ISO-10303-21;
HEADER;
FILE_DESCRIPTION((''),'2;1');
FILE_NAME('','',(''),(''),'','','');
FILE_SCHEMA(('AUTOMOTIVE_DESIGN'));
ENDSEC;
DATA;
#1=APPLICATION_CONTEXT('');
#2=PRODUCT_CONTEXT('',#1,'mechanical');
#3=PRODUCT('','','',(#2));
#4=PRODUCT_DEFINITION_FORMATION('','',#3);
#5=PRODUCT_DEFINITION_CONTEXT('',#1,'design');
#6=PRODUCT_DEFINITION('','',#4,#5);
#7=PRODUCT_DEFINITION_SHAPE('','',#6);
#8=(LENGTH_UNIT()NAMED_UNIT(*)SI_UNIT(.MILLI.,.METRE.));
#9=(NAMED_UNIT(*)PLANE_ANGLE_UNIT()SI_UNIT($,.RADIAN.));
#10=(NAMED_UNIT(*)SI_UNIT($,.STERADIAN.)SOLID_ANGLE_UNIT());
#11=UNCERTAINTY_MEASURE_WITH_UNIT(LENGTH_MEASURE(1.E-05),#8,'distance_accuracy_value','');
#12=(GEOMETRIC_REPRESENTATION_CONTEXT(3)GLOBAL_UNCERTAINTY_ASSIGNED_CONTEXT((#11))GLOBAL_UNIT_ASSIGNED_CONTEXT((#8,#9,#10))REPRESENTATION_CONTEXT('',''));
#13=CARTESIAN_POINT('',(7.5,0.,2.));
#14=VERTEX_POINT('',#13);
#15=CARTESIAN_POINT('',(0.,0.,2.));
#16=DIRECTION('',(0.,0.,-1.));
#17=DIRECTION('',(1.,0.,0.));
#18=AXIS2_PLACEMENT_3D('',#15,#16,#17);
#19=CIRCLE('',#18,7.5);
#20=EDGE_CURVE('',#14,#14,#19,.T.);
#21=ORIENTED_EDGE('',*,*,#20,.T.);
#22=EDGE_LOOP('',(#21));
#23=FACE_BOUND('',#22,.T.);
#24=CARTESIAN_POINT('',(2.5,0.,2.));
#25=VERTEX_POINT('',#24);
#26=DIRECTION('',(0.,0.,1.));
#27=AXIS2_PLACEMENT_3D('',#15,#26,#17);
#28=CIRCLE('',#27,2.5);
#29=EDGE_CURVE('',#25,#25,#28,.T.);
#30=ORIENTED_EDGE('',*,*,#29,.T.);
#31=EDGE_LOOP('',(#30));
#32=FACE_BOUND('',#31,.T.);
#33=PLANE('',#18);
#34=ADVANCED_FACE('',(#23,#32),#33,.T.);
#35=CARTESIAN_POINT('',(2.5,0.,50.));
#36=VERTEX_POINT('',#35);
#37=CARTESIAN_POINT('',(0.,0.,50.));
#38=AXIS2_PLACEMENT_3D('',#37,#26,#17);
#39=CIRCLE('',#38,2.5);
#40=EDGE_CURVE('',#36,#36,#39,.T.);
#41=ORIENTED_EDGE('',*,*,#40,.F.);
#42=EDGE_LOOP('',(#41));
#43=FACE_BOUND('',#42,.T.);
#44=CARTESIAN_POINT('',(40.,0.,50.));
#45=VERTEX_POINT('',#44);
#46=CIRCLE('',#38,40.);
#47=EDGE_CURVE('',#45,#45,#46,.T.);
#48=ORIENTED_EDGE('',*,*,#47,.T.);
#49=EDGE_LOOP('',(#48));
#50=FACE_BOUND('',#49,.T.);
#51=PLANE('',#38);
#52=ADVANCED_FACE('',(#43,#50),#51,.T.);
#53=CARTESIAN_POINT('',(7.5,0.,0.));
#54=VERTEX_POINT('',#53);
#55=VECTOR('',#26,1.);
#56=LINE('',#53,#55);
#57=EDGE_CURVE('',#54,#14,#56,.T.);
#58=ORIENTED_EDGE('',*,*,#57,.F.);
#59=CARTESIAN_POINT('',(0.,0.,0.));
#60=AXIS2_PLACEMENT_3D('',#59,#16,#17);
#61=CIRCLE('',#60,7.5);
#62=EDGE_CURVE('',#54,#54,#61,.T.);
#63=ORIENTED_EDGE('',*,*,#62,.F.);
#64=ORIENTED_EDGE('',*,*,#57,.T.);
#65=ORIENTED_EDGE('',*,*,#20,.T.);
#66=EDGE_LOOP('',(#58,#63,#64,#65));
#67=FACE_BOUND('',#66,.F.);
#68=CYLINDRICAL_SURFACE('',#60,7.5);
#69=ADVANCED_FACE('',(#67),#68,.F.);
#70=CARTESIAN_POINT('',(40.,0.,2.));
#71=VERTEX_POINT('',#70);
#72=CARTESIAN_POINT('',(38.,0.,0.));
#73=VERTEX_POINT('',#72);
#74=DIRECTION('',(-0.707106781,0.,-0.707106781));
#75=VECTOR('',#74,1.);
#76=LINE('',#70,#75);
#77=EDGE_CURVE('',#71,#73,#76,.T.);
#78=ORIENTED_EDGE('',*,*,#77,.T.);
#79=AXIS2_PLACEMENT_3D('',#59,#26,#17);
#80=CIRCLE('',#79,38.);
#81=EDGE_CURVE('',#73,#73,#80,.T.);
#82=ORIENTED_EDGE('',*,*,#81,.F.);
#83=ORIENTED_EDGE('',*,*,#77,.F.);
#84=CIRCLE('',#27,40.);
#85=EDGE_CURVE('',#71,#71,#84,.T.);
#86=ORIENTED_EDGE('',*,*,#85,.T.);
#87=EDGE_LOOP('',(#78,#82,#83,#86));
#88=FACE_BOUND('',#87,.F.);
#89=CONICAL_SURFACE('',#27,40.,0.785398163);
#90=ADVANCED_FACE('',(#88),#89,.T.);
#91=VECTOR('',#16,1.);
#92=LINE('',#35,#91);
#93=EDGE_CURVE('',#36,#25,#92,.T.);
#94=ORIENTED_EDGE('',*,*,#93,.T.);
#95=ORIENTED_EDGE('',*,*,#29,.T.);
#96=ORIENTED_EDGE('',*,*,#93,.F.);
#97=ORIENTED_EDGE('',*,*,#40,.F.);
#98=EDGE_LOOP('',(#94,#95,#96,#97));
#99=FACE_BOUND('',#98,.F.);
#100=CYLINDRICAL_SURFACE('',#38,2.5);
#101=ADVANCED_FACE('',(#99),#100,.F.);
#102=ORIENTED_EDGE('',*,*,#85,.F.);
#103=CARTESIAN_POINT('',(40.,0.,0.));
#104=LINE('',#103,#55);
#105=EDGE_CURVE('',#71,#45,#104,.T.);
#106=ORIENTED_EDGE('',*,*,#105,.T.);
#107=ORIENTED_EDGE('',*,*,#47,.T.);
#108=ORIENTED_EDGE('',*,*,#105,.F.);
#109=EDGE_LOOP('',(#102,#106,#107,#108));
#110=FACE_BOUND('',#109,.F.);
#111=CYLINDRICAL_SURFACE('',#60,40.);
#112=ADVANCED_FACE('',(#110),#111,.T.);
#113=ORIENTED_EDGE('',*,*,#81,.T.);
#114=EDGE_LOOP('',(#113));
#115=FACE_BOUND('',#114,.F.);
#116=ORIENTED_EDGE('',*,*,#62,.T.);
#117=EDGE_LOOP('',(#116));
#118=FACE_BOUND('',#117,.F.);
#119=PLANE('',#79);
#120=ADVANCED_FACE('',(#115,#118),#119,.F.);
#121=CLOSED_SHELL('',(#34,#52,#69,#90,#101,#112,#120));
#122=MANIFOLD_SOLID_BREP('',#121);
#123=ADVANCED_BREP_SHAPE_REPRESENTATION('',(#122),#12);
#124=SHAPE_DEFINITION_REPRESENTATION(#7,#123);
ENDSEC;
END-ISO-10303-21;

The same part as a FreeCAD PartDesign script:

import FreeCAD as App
import Part
import Sketcher
from FreeCAD import Vector
Q = App.Units.Quantity


def edges_at(feature, points):
    """Names of the edges that pass closest to the given points."""
    edges = feature.Shape.Edges
    near = lambda p: min(range(len(edges)), key=lambda i: edges[i].distToShape(Part.Vertex(*p))[0])
    return sorted({f"Edge{near(p) + 1}" for p in points})

doc = App.newDocument("Part")
body = doc.addObject("PartDesign::Body", "Body")

sketch1 = doc.addObject("Sketcher::SketchObject", "Sketch")
body.addObject(sketch1)
sketch1.AttachmentSupport = (doc.XY_Plane, [""])
sketch1.MapMode = "FlatFace"
sketch1.addGeometry(Part.Circle(Vector(0, 0, 0), Vector(0, 0, 1), 40), False)
sketch1.addConstraint([
    Sketcher.Constraint("Coincident", 0, 3, -1, 1),
    Sketcher.Constraint("Diameter", 0, Q("80 mm")),
])
pad1 = doc.addObject("PartDesign::Pad", "Pad")
body.addObject(pad1)
pad1.Profile = sketch1
pad1.Length = 50

sketch2 = doc.addObject("Sketcher::SketchObject", "Sketch001")
body.addObject(sketch2)
sketch2.AttachmentSupport = (doc.XY_Plane, [""])
sketch2.MapMode = "FlatFace"
sketch2.AttachmentOffset = App.Placement(Vector(0, 0, 50), App.Rotation())
sketch2.addGeometry(Part.Circle(Vector(0, 0, 0), Vector(0, 0, 1), 2.5), False)
sketch2.addConstraint([
    Sketcher.Constraint("Coincident", 0, 3, -1, 1),
    Sketcher.Constraint("Diameter", 0, Q("5 mm")),
])
pocket1 = doc.addObject("PartDesign::Pocket", "Pocket")
body.addObject(pocket1)
pocket1.Profile = sketch2
pocket1.Length = 50

sketch3 = doc.addObject("Sketcher::SketchObject", "Sketch002")
body.addObject(sketch3)
sketch3.AttachmentSupport = (doc.XY_Plane, [""])
sketch3.MapMode = "FlatFace"
sketch3.addGeometry(Part.Circle(Vector(0, 0, 0), Vector(0, 0, 1), 8), False)
sketch3.addConstraint([
    Sketcher.Constraint("Coincident", 0, 3, -1, 1),
    Sketcher.Constraint("Diameter", 0, Q("15 mm")),
])
pocket2 = doc.addObject("PartDesign::Pocket", "Pocket001")
body.addObject(pocket2)
pocket2.Profile = sketch3
pocket2.Length = 2
pocket2.Reversed = True
doc.recompute()

chamfer = doc.addObject("PartDesign::Chamfer", "Chamfer")
body.addObject(chamfer)
chamfer.Base = (pocket2, edges_at(pocket2, [(-40, 0, 0)]))
chamfer.Size = 2

doc.recompute()
